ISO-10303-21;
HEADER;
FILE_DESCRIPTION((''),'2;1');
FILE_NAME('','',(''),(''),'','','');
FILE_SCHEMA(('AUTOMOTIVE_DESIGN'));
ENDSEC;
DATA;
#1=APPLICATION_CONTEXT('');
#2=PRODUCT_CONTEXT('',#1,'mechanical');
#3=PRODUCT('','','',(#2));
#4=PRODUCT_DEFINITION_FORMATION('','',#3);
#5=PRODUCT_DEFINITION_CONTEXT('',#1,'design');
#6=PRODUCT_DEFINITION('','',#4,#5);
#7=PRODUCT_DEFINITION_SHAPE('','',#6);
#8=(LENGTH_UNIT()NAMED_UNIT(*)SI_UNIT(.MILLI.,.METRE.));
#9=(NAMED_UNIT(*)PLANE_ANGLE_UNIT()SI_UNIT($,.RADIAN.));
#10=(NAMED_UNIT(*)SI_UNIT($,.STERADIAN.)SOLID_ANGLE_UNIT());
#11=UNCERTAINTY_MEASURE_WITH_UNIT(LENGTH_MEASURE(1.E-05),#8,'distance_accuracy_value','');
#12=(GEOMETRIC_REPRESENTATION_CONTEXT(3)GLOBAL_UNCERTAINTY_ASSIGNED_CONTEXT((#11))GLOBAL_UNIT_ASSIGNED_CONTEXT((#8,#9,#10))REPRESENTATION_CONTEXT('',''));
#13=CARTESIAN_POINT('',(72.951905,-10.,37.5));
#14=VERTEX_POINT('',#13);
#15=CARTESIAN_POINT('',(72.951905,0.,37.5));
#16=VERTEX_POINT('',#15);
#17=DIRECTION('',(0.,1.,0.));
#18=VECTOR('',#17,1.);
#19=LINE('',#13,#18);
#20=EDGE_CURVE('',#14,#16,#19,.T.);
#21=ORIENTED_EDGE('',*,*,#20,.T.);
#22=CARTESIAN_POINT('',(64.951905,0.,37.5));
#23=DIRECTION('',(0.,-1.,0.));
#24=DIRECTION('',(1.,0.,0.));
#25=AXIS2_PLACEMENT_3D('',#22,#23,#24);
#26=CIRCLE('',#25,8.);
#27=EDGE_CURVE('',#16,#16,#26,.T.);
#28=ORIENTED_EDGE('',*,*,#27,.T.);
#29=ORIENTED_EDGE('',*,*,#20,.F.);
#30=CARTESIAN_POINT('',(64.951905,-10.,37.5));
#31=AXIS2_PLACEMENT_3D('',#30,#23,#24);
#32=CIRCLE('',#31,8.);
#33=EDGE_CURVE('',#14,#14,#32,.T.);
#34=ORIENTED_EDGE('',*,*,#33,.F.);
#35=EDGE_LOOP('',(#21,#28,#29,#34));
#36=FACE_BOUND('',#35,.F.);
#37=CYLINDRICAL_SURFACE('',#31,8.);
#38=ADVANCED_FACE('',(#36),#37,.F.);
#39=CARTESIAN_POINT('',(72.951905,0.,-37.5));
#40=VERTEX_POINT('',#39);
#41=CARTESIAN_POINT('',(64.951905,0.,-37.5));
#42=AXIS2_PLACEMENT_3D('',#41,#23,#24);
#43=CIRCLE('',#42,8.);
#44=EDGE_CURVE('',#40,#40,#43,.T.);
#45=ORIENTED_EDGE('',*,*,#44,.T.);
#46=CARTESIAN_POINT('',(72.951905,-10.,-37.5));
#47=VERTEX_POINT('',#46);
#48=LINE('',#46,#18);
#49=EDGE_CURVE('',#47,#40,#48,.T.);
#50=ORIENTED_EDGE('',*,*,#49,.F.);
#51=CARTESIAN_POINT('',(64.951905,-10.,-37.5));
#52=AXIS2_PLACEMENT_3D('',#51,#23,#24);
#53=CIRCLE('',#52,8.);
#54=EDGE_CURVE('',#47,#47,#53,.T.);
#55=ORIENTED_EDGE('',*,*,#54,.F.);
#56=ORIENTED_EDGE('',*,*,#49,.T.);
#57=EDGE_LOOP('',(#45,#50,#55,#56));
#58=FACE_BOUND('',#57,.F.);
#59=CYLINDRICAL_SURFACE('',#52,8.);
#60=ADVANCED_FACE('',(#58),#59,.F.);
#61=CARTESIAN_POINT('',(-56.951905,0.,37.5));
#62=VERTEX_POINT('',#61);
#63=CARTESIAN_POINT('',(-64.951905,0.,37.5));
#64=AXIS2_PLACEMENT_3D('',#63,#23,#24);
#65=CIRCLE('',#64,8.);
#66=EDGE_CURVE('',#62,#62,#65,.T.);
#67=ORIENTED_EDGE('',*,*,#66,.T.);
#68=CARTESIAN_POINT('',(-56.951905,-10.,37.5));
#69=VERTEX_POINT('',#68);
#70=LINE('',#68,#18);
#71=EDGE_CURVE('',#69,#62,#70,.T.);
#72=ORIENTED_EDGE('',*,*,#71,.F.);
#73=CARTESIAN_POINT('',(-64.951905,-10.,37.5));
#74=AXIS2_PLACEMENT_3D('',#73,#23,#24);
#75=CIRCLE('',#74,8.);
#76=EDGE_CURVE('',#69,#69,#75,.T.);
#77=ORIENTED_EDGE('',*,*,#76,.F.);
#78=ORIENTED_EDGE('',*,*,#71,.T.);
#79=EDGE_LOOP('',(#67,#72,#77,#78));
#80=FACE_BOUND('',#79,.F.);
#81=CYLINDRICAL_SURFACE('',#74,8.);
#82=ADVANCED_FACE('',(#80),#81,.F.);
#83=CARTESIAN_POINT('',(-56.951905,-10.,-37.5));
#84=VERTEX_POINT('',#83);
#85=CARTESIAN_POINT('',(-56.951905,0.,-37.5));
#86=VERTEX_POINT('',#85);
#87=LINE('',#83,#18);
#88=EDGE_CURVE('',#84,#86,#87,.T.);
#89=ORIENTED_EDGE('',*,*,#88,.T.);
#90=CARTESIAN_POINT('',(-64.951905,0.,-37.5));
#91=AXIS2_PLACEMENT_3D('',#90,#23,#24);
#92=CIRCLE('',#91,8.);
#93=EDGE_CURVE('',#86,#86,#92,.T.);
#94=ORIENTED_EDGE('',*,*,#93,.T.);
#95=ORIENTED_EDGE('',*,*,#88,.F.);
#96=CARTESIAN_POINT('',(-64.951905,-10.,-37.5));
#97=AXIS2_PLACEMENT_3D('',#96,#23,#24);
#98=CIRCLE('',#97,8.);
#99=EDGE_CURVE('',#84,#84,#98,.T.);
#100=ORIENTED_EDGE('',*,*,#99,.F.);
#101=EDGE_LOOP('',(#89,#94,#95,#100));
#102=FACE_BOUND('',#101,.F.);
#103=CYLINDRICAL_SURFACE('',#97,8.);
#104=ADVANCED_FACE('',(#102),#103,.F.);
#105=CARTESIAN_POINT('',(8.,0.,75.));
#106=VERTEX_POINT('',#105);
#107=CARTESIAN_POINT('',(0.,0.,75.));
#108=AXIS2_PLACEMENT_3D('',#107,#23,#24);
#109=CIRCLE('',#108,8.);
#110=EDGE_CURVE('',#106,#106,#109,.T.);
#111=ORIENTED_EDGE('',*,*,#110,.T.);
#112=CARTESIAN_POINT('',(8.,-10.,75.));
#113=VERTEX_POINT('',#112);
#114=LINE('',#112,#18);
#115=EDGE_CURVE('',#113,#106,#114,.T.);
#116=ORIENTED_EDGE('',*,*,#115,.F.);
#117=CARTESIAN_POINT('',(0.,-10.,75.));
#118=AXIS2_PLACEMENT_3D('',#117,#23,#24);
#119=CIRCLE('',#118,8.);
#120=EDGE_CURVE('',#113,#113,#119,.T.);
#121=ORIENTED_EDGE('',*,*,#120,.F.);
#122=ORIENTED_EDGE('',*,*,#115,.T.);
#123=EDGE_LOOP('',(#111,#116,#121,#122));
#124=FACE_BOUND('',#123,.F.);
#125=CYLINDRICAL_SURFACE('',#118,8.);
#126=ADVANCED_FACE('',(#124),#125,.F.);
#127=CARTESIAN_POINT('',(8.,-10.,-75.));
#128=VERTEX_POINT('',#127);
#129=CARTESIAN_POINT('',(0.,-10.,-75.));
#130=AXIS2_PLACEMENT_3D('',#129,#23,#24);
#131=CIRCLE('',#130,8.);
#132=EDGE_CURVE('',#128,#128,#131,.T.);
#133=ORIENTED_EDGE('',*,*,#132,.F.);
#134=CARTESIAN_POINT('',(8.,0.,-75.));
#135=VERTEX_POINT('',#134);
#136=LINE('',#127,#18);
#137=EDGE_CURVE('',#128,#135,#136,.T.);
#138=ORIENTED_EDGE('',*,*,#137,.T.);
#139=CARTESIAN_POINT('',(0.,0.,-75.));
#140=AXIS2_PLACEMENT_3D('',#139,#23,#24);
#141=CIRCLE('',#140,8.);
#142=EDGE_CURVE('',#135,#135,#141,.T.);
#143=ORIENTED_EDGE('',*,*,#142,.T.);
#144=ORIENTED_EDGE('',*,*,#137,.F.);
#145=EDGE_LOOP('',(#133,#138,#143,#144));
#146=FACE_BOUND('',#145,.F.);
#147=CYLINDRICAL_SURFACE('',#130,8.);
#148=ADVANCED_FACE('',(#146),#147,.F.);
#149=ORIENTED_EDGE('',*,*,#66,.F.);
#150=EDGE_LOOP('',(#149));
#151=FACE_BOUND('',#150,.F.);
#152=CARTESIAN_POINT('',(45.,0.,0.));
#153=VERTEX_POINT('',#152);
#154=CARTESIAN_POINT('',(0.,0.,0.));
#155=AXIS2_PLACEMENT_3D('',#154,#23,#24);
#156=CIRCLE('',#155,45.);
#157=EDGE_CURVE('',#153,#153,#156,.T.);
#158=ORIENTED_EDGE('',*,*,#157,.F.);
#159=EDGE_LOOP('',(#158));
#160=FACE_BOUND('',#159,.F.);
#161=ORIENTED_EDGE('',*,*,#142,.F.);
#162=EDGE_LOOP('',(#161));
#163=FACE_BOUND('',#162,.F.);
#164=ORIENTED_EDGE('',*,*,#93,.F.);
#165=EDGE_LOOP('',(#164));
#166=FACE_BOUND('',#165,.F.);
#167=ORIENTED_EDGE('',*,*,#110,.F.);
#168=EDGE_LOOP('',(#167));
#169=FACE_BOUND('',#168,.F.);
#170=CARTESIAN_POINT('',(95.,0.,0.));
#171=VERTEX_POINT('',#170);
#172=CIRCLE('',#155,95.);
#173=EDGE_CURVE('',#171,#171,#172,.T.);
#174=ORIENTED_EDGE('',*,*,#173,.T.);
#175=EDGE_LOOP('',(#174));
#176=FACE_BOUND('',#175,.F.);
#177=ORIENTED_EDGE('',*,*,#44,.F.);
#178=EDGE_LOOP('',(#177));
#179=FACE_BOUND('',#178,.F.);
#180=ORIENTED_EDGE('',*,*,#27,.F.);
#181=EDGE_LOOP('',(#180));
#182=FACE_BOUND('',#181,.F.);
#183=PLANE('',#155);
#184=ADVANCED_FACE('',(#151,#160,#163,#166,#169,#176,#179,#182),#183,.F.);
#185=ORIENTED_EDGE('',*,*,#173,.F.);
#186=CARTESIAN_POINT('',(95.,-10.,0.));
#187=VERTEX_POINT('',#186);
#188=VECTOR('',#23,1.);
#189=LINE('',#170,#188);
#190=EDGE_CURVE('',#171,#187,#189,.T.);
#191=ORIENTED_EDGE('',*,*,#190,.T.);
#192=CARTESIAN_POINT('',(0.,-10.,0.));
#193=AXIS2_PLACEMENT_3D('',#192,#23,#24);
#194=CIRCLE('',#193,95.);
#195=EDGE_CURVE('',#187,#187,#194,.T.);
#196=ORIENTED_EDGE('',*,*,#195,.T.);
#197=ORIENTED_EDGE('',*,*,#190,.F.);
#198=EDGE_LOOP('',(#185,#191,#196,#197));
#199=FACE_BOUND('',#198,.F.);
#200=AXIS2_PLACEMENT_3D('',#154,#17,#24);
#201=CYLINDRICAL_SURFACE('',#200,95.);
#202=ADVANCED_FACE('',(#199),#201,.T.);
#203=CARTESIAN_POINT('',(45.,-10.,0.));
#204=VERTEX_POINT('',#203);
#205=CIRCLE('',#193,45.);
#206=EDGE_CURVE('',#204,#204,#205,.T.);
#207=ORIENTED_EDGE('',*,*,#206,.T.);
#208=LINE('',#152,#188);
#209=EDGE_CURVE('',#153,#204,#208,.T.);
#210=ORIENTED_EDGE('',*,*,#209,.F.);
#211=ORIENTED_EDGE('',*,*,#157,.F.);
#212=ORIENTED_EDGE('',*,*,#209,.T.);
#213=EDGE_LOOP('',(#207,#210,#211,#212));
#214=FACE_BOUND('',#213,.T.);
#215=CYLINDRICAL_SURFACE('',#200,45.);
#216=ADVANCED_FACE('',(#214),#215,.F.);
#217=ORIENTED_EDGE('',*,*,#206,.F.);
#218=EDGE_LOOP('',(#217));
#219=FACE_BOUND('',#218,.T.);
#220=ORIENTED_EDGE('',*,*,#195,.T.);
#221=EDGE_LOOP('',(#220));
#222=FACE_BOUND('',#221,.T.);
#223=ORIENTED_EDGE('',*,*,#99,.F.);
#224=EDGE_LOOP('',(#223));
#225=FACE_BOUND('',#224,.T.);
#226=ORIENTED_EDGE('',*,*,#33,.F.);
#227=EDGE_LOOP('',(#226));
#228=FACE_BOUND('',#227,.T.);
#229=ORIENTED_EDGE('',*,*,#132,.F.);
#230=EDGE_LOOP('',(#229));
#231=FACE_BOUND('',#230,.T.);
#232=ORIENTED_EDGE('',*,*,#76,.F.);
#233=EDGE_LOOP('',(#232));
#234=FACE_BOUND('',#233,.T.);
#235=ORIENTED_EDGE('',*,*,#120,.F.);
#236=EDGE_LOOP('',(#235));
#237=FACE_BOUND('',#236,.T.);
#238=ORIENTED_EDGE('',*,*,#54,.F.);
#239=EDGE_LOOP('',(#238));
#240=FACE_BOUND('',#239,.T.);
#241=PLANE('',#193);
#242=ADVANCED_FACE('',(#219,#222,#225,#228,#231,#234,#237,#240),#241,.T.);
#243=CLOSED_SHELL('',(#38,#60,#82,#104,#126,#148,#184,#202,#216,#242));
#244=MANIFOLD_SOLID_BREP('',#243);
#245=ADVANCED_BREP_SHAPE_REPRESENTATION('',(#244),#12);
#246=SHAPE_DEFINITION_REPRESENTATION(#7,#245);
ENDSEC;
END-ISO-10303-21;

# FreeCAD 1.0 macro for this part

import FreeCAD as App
import Part
import Sketcher

V = App.Vector
Q = App.Units.Quantity

doc = App.newDocument("Part")
params = doc.addObject("Spreadsheet::Sheet", "Params")
for row, (alias, value) in enumerate([
    ("sketch1_diameter", "190 mm"),
    ("sketch1_diameter2", "90 mm"),
    ("pad1_length", "10 mm"),
    ("sketch2_diameter", "16 mm"),
    ("pocket1_length", "25 mm"),
], start=1):
    params.set(f"A{row}", alias)
    params.set(f"B{row}", "=" + value)
    params.setAlias(f"B{row}", alias)

body = doc.addObject("PartDesign::Body", "Body")

# Sketch on XZ plane
sketch1 = body.newObject("Sketcher::SketchObject", "Sketch")
sketch1.AttachmentSupport = (doc.getObject("XZ_Plane"), [""])
sketch1.MapMode = "FlatFace"
sketch1.addGeometry(Part.Circle(V(0, 0, 0), V(0, 0, 1), 95), False)
sketch1.addGeometry(Part.Circle(V(0, 0, 0), V(0, 0, 1), 45), False)
sketch1.addConstraint(Sketcher.Constraint("Coincident", 0, 3, -1, 1))
sketch1.addConstraint(Sketcher.Constraint("Coincident", 1, 3, -1, 1))
sketch1.addConstraint(Sketcher.Constraint("Diameter", 0, Q("190 mm")))
sketch1.addConstraint(Sketcher.Constraint("Diameter", 1, Q("90 mm")))
sketch1.setExpression("Constraints[2]", "Params.sketch1_diameter")
sketch1.setExpression("Constraints[3]", "Params.sketch1_diameter2")
pad1 = body.newObject("PartDesign::Pad", "Pad")
pad1.Profile = sketch1
pad1.setExpression("Length", "Params.pad1_length")

# Sketch on XZ plane
sketch2 = body.newObject("Sketcher::SketchObject", "Sketch001")
sketch2.AttachmentSupport = (doc.getObject("XZ_Plane"), [""])
sketch2.MapMode = "FlatFace"
sketch2.AttachmentOffset = App.Placement(V(0, 0, 10), App.Rotation())
sketch2.addGeometry(Part.Circle(V(0, 75, 0), V(0, 0, 1), 8), False)
sketch2.addGeometry(Part.Circle(V(65, 38, 0), V(0, 0, 1), 8), False)
sketch2.addGeometry(Part.Circle(V(65, -38, 0), V(0, 0, 1), 8), False)
sketch2.addGeometry(Part.Circle(V(0, -75, 0), V(0, 0, 1), 8), False)
sketch2.addGeometry(Part.Circle(V(-65, -38, 0), V(0, 0, 1), 8), False)
sketch2.addGeometry(Part.Circle(V(-65, 38, 0), V(0, 0, 1), 8), False)
sketch2.addConstraint(Sketcher.Constraint("Equal", 0, 1))
sketch2.addConstraint(Sketcher.Constraint("Equal", 1, 2))
sketch2.addConstraint(Sketcher.Constraint("Equal", 2, 3))
sketch2.addConstraint(Sketcher.Constraint("Equal", 3, 4))
sketch2.addConstraint(Sketcher.Constraint("Equal", 4, 5))
sketch2.addConstraint(Sketcher.Constraint("Symmetric", 0, 3, 3, 3, -1, 1))
sketch2.addConstraint(Sketcher.Constraint("Symmetric", 1, 3, 4, 3, -1, 1))
sketch2.addConstraint(Sketcher.Constraint("Symmetric", 2, 3, 5, 3, -1, 1))
sketch2.addConstraint(Sketcher.Constraint("Symmetric", 2, 3, 4, 3, -2))
sketch2.addConstraint(Sketcher.Constraint("PointOnObject", 0, 3, -2))
sketch2.addConstraint(Sketcher.Constraint("Diameter", 0, Q("16 mm")))
sketch2.addConstraint(Sketcher.Constraint("DistanceY", -1, 1, 0, 3, Q("75 mm")))
sketch2.addConstraint(Sketcher.Constraint("DistanceY", 2, 3, 1, 3, Q("75 mm")))
sketch2.addConstraint(Sketcher.Constraint("DistanceX", 4, 3, 2, 3, Q("129.90381 mm")))
sketch2.setExpression("Constraints[10]", "Params.sketch2_diameter")
pocket1 = body.newObject("PartDesign::Pocket", "Pocket")
pocket1.Profile = sketch2
pocket1.setExpression("Length", "Params.pocket1_length")

doc.recompute()
